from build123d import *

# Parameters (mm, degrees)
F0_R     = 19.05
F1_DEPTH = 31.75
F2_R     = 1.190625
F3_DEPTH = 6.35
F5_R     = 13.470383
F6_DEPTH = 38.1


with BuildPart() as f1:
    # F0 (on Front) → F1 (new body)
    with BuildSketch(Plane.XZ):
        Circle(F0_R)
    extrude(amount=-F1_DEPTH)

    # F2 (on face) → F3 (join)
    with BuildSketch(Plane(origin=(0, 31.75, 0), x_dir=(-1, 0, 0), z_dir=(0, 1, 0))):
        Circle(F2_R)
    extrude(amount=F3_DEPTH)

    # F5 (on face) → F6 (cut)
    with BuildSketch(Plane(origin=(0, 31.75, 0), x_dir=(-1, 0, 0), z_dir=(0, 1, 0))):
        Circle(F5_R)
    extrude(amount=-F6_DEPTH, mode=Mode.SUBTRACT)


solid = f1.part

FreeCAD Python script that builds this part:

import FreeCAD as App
import Part
import Sketcher
from FreeCAD import Vector
Q = App.Units.Quantity

doc = App.newDocument("Part")
body = doc.addObject("PartDesign::Body", "Body")
body.AllowCompound = True

# Sketch on XZ plane
sketch1 = body.newObject("Sketcher::SketchObject", "Sketch")
sketch1.AttachmentSupport = (doc.getObject("XZ_Plane"), [""])
sketch1.MapMode = "FlatFace"
sketch1.addGeometry(Part.Circle(Vector(0, 0, 0), Vector(0, 0, 1), 19), False)
sketch1.addConstraint(Sketcher.Constraint("Coincident", 0, 3, -1, 1))
sketch1.addConstraint(Sketcher.Constraint("Diameter", 0, Q("1.5 in")))
pad1 = body.newObject("PartDesign::Pad", "Pad")
pad1.Profile = sketch1
pad1.Length = Q("1.25 in")
pad1.Reversed = True

# Sketch on XZ plane
sketch2 = body.newObject("Sketcher::SketchObject", "Sketch001")
sketch2.AttachmentSupport = (doc.getObject("XZ_Plane"), [""])
sketch2.MapMode = "FlatFace"
sketch2.AttachmentOffset = App.Placement(Vector(0, 0, -1.25 * 25.4), App.Rotation())
sketch2.addGeometry(Part.Circle(Vector(0, 0, 0), Vector(0, 0, 1), 1.2), False)
sketch2.addConstraint(Sketcher.Constraint("Coincident", 0, 3, -1, 1))
sketch2.addConstraint(Sketcher.Constraint("Diameter", 0, Q("0.09375 in")))
pad2 = body.newObject("PartDesign::Pad", "Pad001")
pad2.Profile = sketch2
pad2.Length = Q("0.25 in")
pad2.Reversed = True

# Sketch on XZ plane
sketch3 = body.newObject("Sketcher::SketchObject", "Sketch002")
sketch3.AttachmentSupport = (doc.getObject("XZ_Plane"), [""])
sketch3.MapMode = "FlatFace"
sketch3.AttachmentOffset = App.Placement(Vector(0, 0, -1.25 * 25.4), App.Rotation())
sketch3.addGeometry(Part.Circle(Vector(0, 0, 0), Vector(0, 0, 1), 13), False)
sketch3.addConstraint(Sketcher.Constraint("Coincident", 0, 3, -1, 1))
sketch3.addConstraint(Sketcher.Constraint("Diameter", 0, Q("26.940766 mm")))
pocket1 = body.newObject("PartDesign::Pocket", "Pocket")
pocket1.Profile = sketch3
pocket1.Length = Q("1.5 in")
pocket1.Reversed = True

doc.recompute()
